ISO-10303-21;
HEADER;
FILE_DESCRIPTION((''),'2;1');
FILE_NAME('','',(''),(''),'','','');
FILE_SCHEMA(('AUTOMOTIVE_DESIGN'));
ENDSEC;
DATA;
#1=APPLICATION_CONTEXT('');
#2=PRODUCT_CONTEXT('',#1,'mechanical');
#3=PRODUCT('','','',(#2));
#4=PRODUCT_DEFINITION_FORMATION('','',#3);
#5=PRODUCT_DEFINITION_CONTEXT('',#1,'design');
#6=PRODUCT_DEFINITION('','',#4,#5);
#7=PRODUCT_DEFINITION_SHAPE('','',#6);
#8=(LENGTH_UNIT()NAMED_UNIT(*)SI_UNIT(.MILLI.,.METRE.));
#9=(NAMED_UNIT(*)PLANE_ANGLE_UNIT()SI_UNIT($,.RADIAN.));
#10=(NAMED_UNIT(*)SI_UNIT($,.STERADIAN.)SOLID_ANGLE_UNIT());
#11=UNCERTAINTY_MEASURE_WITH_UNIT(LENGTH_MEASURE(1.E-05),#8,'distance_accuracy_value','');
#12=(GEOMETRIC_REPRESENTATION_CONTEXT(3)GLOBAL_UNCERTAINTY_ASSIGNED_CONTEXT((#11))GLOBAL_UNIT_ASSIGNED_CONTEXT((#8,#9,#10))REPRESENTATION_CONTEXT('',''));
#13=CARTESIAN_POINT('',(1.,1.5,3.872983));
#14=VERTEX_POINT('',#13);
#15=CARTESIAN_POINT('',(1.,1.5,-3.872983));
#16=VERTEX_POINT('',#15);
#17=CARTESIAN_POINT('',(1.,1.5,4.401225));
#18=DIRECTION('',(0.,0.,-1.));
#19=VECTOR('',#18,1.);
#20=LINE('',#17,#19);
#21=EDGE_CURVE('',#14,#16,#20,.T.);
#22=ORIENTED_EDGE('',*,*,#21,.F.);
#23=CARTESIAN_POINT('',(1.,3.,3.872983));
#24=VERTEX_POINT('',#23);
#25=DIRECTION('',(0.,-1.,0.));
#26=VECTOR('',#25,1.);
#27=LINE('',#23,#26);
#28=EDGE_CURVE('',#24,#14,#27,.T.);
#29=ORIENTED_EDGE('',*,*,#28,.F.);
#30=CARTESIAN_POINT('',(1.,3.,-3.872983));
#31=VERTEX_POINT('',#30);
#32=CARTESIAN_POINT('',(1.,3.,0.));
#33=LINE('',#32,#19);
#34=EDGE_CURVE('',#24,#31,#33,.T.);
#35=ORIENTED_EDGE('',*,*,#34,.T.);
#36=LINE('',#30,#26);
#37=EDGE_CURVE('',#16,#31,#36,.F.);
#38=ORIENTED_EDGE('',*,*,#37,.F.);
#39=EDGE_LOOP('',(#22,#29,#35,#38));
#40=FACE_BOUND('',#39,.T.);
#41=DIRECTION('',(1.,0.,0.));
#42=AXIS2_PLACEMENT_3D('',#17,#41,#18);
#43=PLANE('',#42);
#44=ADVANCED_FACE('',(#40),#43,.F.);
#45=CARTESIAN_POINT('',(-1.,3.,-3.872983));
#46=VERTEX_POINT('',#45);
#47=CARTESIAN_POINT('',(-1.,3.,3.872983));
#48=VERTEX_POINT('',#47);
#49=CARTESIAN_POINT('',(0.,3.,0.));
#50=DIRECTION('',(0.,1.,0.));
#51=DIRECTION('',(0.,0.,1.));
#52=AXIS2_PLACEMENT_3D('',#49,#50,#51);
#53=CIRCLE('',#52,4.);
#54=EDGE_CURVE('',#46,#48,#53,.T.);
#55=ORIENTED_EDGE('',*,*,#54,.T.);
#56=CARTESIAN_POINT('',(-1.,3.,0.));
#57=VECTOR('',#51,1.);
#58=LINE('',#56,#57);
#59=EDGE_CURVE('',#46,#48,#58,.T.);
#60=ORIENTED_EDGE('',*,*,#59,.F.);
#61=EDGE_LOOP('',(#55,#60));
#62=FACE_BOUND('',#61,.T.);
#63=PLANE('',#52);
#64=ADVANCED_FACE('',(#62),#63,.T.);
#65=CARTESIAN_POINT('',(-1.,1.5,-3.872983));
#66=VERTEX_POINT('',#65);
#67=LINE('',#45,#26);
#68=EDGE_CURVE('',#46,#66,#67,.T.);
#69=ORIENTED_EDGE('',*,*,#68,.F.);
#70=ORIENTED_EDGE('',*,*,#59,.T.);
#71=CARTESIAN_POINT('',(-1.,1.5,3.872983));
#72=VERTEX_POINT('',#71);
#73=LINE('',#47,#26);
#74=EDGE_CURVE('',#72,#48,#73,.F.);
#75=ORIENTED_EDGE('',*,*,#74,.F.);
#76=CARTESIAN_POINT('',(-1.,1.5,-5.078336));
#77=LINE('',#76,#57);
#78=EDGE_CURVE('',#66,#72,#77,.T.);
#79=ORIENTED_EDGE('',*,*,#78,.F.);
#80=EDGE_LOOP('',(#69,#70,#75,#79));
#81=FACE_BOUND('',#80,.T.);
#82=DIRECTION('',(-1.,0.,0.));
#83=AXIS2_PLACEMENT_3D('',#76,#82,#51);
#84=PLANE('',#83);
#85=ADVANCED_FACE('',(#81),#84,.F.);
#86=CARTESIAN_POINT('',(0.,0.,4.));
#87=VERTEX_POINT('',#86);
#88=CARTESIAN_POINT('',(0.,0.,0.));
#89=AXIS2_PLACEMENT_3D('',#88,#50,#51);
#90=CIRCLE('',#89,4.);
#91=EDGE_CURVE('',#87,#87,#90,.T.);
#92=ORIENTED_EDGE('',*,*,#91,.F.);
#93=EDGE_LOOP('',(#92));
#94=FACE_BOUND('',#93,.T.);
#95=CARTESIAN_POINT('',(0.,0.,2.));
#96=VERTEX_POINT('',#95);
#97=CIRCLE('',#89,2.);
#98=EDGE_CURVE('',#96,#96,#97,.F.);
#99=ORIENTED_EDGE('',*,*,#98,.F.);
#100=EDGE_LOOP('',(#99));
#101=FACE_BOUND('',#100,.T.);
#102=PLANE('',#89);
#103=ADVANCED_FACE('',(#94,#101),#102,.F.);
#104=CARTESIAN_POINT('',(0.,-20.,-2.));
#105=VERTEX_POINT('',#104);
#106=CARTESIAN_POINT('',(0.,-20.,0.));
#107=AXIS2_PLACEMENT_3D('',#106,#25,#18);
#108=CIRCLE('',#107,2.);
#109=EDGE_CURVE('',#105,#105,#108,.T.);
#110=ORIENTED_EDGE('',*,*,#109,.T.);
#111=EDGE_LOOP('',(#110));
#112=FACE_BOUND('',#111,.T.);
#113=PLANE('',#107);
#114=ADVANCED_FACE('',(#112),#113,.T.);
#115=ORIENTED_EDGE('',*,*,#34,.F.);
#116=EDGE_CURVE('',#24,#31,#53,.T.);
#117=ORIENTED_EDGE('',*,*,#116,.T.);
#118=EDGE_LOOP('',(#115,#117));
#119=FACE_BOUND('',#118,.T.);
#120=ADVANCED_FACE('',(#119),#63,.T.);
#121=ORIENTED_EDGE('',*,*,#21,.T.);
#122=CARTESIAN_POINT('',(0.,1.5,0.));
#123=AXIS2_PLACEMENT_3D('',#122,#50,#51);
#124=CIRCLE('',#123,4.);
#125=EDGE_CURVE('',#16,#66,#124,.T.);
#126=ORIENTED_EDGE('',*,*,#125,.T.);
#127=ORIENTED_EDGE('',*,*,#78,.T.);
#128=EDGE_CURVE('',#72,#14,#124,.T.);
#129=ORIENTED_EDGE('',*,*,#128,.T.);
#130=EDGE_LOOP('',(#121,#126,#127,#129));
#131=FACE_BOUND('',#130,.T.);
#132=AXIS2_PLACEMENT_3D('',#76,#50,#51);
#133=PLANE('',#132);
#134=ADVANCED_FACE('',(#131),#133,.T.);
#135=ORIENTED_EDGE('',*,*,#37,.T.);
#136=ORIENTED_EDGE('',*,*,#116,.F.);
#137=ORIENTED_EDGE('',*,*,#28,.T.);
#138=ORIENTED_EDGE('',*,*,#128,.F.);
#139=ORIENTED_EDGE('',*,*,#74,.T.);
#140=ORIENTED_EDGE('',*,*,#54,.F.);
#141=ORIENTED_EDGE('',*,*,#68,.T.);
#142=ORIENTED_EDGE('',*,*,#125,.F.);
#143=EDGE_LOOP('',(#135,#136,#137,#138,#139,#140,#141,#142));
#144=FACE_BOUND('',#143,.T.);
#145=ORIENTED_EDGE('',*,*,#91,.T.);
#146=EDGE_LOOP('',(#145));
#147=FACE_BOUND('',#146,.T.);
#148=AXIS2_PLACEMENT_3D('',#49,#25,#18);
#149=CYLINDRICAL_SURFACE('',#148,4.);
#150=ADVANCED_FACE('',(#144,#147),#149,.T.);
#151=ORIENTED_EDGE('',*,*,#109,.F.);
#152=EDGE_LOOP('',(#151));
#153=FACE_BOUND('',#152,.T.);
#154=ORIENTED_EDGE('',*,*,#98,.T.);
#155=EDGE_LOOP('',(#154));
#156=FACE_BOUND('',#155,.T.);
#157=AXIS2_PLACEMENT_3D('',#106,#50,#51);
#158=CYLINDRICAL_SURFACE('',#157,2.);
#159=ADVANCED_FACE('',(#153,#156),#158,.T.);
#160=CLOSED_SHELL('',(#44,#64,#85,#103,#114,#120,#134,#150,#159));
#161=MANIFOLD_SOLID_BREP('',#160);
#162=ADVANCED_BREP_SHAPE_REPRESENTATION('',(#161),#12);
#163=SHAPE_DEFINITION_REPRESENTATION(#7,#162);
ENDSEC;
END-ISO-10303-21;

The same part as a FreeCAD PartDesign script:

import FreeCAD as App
import Part
import Sketcher
Q = App.Units.Quantity

doc = App.newDocument("Part")
body = doc.addObject("PartDesign::Body", "Body")

sketch1 = body.newObject("Sketcher::SketchObject", "Sketch")
sketch1.AttachmentSupport = (doc.getObject("XZ_Plane"), [""])
sketch1.MapMode = "FlatFace"
sketch1.addGeometry(Part.Circle(App.Vector(0, 0, 0), App.Vector(0, 0, 1), 4), False)
sketch1.addConstraint([
    Sketcher.Constraint("Coincident", 0, 3, -1, 1),
    Sketcher.Constraint("Diameter", 0, Q("8 mm")),
])
pad1 = body.newObject("PartDesign::Pad", "Pad")
pad1.Profile = sketch1
pad1.Length = 3
pad1.Reversed = True

sketch2 = body.newObject("Sketcher::SketchObject", "Sketch001")
sketch2.AttachmentSupport = (doc.getObject("XZ_Plane"), [""])
sketch2.MapMode = "FlatFace"
sketch2.AttachmentOffset = App.Placement(App.Vector(0, 0, -3), App.Rotation())
sketch2.addGeometry([
    Part.LineSegment(App.Vector(1, 4.401225, 0), App.Vector(1, -5.078336, 0)),
    Part.LineSegment(App.Vector(1, -5.078336, 0), App.Vector(-1, -5.078336, 0)),
    Part.LineSegment(App.Vector(-1, -5.078336, 0), App.Vector(-1, 4.401225, 0)),
    Part.LineSegment(App.Vector(-1, 4.401225, 0), App.Vector(1, 4.401225, 0)),
], False)
sketch2.addConstraint([
    Sketcher.Constraint("Coincident", 0, 2, 1, 1),
    Sketcher.Constraint("Coincident", 1, 2, 2, 1),
    Sketcher.Constraint("Coincident", 2, 2, 3, 1),
    Sketcher.Constraint("Coincident", 3, 2, 0, 1),
    Sketcher.Constraint("Vertical", 0),
    Sketcher.Constraint("Horizontal", 1),
    Sketcher.Constraint("Vertical", 2),
    Sketcher.Constraint("Horizontal", 3),
    Sketcher.Constraint("DistanceX", 1, 2, 1, 1, Q("2 mm")),
    Sketcher.Constraint("DistanceX", -1, 1, 0, 2, Q("1 mm")),
    Sketcher.Constraint("DistanceY", 0, 2, 0, 1, Q("9.479561 mm")),
    Sketcher.Constraint("DistanceY", 0, 2, -1, 1, Q("5.078336 mm")),
])
pocket1 = body.newObject("PartDesign::Pocket", "Pocket")
pocket1.Profile = sketch2
pocket1.Length = 1.5
pocket1.Reversed = True

sketch3 = body.newObject("Sketcher::SketchObject", "Sketch002")
sketch3.AttachmentSupport = (doc.getObject("XZ_Plane"), [""])
sketch3.MapMode = "FlatFace"
sketch3.addGeometry(Part.Circle(App.Vector(0, 0, 0), App.Vector(0, 0, 1), 2), False)
sketch3.addConstraint([
    Sketcher.Constraint("Coincident", 0, 3, -1, 1),
    Sketcher.Constraint("Diameter", 0, Q("4 mm")),
])
pad2 = body.newObject("PartDesign::Pad", "Pad001")
pad2.Profile = sketch3
pad2.Length = 20

doc.recompute()
